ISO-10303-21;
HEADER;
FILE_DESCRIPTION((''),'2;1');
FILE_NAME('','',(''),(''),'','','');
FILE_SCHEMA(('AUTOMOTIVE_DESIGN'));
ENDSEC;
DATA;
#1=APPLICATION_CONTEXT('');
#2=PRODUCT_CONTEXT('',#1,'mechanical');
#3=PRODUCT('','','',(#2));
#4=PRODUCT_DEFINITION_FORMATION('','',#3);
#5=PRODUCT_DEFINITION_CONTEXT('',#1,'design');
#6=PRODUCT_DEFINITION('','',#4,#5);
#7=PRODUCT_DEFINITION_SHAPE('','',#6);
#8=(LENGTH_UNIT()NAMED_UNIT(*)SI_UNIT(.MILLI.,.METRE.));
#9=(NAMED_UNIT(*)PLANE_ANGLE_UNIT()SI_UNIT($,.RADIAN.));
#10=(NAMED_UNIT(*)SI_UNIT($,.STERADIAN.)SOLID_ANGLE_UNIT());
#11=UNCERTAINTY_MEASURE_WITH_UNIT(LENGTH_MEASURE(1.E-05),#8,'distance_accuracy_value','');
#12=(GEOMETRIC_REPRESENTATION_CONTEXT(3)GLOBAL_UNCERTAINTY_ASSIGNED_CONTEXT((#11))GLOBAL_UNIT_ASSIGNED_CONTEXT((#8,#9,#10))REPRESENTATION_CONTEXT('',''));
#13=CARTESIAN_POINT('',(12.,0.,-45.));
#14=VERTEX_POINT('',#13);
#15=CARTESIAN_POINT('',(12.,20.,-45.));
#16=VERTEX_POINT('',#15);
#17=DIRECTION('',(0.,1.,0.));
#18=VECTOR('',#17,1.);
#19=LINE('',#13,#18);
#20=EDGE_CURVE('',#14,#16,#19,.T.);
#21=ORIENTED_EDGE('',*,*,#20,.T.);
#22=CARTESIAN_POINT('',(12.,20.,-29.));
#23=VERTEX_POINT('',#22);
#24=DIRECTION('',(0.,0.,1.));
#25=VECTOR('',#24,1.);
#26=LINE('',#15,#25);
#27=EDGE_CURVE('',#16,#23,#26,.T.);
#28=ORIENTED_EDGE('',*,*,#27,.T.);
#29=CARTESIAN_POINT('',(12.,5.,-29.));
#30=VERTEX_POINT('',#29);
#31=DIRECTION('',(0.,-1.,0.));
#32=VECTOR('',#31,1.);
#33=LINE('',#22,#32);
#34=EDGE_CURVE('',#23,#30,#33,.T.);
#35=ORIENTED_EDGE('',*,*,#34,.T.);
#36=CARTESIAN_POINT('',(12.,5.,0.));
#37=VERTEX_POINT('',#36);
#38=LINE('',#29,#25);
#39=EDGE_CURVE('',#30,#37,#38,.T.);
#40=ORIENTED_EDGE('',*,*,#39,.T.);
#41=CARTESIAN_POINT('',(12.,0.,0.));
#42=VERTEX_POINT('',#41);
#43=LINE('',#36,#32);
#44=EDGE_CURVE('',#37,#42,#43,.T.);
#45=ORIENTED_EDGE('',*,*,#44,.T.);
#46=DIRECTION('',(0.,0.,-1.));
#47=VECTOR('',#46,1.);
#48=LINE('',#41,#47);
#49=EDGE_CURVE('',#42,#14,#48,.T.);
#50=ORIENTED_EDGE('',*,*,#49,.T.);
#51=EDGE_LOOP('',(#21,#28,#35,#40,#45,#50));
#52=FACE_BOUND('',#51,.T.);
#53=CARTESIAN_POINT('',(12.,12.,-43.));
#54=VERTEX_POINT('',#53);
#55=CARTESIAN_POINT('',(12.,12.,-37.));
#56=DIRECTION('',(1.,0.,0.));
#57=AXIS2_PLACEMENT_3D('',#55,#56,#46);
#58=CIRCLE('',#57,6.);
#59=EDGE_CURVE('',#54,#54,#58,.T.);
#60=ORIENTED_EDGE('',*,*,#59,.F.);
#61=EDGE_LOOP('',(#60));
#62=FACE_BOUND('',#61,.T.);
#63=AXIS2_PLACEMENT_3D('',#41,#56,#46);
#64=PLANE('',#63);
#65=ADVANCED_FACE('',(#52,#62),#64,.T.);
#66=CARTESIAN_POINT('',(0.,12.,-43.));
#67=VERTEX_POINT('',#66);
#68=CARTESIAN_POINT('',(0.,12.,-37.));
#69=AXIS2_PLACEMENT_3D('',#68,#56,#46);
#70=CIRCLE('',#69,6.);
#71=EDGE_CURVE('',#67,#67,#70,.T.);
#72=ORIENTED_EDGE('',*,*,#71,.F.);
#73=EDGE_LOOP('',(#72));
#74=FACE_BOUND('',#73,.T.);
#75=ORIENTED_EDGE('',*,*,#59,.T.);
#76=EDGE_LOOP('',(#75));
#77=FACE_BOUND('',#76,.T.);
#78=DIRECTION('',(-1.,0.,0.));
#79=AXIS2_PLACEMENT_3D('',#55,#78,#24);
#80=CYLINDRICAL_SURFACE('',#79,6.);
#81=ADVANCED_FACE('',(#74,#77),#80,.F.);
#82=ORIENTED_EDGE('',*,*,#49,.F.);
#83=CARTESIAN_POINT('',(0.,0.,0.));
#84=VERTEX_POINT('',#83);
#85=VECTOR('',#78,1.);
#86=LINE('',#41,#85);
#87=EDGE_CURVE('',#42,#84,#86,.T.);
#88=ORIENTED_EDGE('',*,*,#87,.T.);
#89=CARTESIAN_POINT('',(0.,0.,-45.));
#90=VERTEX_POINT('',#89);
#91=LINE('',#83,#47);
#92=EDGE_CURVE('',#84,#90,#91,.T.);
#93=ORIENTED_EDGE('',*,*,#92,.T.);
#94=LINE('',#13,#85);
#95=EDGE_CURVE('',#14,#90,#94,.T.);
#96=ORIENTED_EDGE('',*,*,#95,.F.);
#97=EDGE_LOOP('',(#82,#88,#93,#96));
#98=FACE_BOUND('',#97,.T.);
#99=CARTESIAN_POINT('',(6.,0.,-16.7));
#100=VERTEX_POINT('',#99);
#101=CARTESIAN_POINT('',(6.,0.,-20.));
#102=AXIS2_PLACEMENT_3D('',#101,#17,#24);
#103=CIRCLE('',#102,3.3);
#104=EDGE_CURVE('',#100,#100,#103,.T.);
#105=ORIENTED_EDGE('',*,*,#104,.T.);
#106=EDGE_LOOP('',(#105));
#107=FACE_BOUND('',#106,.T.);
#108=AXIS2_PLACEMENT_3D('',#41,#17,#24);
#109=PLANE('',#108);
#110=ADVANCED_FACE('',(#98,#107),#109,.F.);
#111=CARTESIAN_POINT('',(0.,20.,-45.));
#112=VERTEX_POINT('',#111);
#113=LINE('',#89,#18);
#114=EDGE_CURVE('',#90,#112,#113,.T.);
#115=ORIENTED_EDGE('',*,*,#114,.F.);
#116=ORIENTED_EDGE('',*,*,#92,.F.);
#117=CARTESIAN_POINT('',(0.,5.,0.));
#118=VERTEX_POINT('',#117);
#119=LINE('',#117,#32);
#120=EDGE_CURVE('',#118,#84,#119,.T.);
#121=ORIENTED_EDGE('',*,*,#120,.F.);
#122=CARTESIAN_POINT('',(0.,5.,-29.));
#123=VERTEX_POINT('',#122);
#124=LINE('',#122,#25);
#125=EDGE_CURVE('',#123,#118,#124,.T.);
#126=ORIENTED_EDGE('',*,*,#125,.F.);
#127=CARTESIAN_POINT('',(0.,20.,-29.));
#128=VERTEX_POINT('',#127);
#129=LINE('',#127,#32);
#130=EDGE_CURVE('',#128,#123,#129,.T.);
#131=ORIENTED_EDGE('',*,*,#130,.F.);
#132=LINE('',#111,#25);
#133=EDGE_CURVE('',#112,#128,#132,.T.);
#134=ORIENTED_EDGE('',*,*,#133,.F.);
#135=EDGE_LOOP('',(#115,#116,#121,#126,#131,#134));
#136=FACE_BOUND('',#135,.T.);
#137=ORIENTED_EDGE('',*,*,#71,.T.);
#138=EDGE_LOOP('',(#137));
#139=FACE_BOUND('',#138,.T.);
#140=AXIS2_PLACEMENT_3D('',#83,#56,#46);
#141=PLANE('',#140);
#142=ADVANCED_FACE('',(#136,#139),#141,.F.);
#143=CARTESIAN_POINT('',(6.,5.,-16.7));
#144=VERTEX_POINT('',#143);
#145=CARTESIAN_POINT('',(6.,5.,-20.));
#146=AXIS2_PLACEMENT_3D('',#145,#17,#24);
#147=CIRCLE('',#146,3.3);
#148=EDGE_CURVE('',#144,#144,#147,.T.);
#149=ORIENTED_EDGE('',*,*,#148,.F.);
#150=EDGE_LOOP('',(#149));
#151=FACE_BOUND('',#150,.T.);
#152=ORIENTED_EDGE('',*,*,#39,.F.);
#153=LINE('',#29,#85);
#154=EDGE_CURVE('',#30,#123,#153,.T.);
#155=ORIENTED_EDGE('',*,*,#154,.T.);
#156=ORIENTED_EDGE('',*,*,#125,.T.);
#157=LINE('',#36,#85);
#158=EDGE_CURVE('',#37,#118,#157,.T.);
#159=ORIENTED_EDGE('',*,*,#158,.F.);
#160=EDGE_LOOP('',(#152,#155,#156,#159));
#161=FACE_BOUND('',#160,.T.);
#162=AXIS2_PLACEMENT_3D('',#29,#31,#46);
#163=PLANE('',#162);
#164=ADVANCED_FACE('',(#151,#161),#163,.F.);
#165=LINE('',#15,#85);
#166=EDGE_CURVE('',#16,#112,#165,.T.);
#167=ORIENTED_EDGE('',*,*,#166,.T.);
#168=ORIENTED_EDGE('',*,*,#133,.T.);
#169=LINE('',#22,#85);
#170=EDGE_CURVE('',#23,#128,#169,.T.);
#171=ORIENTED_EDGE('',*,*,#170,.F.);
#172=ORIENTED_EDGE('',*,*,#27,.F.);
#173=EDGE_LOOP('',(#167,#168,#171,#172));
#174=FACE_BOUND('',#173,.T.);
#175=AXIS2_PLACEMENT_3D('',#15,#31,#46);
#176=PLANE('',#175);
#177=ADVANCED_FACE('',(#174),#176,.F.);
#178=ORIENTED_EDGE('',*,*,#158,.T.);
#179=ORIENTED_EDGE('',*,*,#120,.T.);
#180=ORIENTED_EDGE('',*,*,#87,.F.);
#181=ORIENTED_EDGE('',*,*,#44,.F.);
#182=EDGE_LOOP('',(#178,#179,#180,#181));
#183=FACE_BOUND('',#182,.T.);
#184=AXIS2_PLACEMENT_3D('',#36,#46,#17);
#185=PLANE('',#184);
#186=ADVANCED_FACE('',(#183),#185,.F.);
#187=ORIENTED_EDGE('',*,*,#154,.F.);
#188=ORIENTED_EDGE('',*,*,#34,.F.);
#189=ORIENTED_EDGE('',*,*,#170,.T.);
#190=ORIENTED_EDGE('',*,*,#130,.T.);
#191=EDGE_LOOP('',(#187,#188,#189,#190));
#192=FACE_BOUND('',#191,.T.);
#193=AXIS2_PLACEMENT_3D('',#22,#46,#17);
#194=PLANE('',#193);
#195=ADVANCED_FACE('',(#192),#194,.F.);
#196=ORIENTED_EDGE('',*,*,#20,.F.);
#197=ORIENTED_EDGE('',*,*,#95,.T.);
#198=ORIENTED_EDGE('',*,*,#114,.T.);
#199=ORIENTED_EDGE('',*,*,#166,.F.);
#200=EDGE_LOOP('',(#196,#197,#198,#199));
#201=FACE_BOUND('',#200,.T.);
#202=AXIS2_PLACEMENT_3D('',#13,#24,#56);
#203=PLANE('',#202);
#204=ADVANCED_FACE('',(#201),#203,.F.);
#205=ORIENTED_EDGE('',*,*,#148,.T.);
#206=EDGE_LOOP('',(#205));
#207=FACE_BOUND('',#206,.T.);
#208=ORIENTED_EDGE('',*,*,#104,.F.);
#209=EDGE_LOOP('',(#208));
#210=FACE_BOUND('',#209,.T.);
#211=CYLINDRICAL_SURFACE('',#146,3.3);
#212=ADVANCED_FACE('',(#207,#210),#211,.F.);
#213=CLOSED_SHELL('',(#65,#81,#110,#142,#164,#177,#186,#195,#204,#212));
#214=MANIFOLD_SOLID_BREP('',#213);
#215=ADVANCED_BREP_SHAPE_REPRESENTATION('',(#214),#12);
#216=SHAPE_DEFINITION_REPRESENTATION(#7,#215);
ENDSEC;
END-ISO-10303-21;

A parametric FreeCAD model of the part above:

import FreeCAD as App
import Part
import Sketcher
from FreeCAD import Vector
Q = App.Units.Quantity


def add_polygon(sketch, points):
    """Adds a closed chain of lines whose ends are joined by coincident constraints."""
    first, n = sketch.GeometryCount, len(points)
    for a, b in zip(points, points[1:] + points[:1]):
        sketch.addGeometry(Part.LineSegment(App.Vector(*a, 0), App.Vector(*b, 0)), False)
    for i in range(n):
        sketch.addConstraint(Sketcher.Constraint("Coincident", first + i, 2, first + (i + 1) % n, 1))

doc = App.newDocument("Part")
body = doc.addObject("PartDesign::Body", "Body")

sketch1 = doc.addObject("Sketcher::SketchObject", "Sketch")
body.addObject(sketch1)
sketch1.AttachmentSupport = (doc.YZ_Plane, [""])
sketch1.MapMode = "FlatFace"
add_polygon(sketch1, [(0, 0), (0, -45), (20, -45), (20, -29), (5, -29), (5, 0)])
sketch1.addGeometry(Part.Circle(Vector(12, -37, 0), Vector(0, 0, 1), 6), False)
sketch1.addConstraint([
    Sketcher.Constraint("Vertical", 0),
    Sketcher.Constraint("Horizontal", 1),
    Sketcher.Constraint("Vertical", 2),
    Sketcher.Constraint("Horizontal", 3),
    Sketcher.Constraint("Vertical", 4),
    Sketcher.Constraint("Horizontal", 5),
    Sketcher.Constraint("Coincident", 5, 2, -1, 1),
    Sketcher.Constraint("Diameter", 6, Q("12 mm")),
    Sketcher.Constraint("DistanceX", 1, 1, 1, 2, Q("20 mm")),
    Sketcher.Constraint("DistanceX", 3, 2, 3, 1, Q("15 mm")),
    Sketcher.Constraint("DistanceY", 0, 2, 0, 1, Q("45 mm")),
    Sketcher.Constraint("DistanceY", 2, 1, 2, 2, Q("16 mm")),
    Sketcher.Constraint("DistanceX", -1, 1, 6, 3, Q("12 mm")),
    Sketcher.Constraint("DistanceY", 6, 3, -1, 1, Q("37 mm")),
])
pad1 = doc.addObject("PartDesign::Pad", "Pad")
body.addObject(pad1)
pad1.Profile = sketch1
pad1.Length = 12

sketch2 = doc.addObject("Sketcher::SketchObject", "Sketch001")
body.addObject(sketch2)
sketch2.AttachmentSupport = (doc.XZ_Plane, [""])
sketch2.MapMode = "FlatFace"
sketch2.AttachmentOffset = App.Placement(Vector(0, 0, -5), App.Rotation())
sketch2.addGeometry(Part.Circle(Vector(6, -20, 0), Vector(0, 0, 1), 3.3), False)
sketch2.addConstraint([
    Sketcher.Constraint("Diameter", 0, Q("6.6 mm")),
    Sketcher.Constraint("DistanceX", -1, 1, 0, 3, Q("6 mm")),
    Sketcher.Constraint("DistanceY", 0, 3, -1, 1, Q("20 mm")),
])
doc.recompute()
hole = doc.addObject("PartDesign::Hole", "Hole")
body.addObject(hole)
hole.Profile = sketch2
hole.ThreadType = "None"
hole.Diameter = 6.6
hole.DepthType = "ThroughAll"
hole.Reversed = True

doc.recompute()
